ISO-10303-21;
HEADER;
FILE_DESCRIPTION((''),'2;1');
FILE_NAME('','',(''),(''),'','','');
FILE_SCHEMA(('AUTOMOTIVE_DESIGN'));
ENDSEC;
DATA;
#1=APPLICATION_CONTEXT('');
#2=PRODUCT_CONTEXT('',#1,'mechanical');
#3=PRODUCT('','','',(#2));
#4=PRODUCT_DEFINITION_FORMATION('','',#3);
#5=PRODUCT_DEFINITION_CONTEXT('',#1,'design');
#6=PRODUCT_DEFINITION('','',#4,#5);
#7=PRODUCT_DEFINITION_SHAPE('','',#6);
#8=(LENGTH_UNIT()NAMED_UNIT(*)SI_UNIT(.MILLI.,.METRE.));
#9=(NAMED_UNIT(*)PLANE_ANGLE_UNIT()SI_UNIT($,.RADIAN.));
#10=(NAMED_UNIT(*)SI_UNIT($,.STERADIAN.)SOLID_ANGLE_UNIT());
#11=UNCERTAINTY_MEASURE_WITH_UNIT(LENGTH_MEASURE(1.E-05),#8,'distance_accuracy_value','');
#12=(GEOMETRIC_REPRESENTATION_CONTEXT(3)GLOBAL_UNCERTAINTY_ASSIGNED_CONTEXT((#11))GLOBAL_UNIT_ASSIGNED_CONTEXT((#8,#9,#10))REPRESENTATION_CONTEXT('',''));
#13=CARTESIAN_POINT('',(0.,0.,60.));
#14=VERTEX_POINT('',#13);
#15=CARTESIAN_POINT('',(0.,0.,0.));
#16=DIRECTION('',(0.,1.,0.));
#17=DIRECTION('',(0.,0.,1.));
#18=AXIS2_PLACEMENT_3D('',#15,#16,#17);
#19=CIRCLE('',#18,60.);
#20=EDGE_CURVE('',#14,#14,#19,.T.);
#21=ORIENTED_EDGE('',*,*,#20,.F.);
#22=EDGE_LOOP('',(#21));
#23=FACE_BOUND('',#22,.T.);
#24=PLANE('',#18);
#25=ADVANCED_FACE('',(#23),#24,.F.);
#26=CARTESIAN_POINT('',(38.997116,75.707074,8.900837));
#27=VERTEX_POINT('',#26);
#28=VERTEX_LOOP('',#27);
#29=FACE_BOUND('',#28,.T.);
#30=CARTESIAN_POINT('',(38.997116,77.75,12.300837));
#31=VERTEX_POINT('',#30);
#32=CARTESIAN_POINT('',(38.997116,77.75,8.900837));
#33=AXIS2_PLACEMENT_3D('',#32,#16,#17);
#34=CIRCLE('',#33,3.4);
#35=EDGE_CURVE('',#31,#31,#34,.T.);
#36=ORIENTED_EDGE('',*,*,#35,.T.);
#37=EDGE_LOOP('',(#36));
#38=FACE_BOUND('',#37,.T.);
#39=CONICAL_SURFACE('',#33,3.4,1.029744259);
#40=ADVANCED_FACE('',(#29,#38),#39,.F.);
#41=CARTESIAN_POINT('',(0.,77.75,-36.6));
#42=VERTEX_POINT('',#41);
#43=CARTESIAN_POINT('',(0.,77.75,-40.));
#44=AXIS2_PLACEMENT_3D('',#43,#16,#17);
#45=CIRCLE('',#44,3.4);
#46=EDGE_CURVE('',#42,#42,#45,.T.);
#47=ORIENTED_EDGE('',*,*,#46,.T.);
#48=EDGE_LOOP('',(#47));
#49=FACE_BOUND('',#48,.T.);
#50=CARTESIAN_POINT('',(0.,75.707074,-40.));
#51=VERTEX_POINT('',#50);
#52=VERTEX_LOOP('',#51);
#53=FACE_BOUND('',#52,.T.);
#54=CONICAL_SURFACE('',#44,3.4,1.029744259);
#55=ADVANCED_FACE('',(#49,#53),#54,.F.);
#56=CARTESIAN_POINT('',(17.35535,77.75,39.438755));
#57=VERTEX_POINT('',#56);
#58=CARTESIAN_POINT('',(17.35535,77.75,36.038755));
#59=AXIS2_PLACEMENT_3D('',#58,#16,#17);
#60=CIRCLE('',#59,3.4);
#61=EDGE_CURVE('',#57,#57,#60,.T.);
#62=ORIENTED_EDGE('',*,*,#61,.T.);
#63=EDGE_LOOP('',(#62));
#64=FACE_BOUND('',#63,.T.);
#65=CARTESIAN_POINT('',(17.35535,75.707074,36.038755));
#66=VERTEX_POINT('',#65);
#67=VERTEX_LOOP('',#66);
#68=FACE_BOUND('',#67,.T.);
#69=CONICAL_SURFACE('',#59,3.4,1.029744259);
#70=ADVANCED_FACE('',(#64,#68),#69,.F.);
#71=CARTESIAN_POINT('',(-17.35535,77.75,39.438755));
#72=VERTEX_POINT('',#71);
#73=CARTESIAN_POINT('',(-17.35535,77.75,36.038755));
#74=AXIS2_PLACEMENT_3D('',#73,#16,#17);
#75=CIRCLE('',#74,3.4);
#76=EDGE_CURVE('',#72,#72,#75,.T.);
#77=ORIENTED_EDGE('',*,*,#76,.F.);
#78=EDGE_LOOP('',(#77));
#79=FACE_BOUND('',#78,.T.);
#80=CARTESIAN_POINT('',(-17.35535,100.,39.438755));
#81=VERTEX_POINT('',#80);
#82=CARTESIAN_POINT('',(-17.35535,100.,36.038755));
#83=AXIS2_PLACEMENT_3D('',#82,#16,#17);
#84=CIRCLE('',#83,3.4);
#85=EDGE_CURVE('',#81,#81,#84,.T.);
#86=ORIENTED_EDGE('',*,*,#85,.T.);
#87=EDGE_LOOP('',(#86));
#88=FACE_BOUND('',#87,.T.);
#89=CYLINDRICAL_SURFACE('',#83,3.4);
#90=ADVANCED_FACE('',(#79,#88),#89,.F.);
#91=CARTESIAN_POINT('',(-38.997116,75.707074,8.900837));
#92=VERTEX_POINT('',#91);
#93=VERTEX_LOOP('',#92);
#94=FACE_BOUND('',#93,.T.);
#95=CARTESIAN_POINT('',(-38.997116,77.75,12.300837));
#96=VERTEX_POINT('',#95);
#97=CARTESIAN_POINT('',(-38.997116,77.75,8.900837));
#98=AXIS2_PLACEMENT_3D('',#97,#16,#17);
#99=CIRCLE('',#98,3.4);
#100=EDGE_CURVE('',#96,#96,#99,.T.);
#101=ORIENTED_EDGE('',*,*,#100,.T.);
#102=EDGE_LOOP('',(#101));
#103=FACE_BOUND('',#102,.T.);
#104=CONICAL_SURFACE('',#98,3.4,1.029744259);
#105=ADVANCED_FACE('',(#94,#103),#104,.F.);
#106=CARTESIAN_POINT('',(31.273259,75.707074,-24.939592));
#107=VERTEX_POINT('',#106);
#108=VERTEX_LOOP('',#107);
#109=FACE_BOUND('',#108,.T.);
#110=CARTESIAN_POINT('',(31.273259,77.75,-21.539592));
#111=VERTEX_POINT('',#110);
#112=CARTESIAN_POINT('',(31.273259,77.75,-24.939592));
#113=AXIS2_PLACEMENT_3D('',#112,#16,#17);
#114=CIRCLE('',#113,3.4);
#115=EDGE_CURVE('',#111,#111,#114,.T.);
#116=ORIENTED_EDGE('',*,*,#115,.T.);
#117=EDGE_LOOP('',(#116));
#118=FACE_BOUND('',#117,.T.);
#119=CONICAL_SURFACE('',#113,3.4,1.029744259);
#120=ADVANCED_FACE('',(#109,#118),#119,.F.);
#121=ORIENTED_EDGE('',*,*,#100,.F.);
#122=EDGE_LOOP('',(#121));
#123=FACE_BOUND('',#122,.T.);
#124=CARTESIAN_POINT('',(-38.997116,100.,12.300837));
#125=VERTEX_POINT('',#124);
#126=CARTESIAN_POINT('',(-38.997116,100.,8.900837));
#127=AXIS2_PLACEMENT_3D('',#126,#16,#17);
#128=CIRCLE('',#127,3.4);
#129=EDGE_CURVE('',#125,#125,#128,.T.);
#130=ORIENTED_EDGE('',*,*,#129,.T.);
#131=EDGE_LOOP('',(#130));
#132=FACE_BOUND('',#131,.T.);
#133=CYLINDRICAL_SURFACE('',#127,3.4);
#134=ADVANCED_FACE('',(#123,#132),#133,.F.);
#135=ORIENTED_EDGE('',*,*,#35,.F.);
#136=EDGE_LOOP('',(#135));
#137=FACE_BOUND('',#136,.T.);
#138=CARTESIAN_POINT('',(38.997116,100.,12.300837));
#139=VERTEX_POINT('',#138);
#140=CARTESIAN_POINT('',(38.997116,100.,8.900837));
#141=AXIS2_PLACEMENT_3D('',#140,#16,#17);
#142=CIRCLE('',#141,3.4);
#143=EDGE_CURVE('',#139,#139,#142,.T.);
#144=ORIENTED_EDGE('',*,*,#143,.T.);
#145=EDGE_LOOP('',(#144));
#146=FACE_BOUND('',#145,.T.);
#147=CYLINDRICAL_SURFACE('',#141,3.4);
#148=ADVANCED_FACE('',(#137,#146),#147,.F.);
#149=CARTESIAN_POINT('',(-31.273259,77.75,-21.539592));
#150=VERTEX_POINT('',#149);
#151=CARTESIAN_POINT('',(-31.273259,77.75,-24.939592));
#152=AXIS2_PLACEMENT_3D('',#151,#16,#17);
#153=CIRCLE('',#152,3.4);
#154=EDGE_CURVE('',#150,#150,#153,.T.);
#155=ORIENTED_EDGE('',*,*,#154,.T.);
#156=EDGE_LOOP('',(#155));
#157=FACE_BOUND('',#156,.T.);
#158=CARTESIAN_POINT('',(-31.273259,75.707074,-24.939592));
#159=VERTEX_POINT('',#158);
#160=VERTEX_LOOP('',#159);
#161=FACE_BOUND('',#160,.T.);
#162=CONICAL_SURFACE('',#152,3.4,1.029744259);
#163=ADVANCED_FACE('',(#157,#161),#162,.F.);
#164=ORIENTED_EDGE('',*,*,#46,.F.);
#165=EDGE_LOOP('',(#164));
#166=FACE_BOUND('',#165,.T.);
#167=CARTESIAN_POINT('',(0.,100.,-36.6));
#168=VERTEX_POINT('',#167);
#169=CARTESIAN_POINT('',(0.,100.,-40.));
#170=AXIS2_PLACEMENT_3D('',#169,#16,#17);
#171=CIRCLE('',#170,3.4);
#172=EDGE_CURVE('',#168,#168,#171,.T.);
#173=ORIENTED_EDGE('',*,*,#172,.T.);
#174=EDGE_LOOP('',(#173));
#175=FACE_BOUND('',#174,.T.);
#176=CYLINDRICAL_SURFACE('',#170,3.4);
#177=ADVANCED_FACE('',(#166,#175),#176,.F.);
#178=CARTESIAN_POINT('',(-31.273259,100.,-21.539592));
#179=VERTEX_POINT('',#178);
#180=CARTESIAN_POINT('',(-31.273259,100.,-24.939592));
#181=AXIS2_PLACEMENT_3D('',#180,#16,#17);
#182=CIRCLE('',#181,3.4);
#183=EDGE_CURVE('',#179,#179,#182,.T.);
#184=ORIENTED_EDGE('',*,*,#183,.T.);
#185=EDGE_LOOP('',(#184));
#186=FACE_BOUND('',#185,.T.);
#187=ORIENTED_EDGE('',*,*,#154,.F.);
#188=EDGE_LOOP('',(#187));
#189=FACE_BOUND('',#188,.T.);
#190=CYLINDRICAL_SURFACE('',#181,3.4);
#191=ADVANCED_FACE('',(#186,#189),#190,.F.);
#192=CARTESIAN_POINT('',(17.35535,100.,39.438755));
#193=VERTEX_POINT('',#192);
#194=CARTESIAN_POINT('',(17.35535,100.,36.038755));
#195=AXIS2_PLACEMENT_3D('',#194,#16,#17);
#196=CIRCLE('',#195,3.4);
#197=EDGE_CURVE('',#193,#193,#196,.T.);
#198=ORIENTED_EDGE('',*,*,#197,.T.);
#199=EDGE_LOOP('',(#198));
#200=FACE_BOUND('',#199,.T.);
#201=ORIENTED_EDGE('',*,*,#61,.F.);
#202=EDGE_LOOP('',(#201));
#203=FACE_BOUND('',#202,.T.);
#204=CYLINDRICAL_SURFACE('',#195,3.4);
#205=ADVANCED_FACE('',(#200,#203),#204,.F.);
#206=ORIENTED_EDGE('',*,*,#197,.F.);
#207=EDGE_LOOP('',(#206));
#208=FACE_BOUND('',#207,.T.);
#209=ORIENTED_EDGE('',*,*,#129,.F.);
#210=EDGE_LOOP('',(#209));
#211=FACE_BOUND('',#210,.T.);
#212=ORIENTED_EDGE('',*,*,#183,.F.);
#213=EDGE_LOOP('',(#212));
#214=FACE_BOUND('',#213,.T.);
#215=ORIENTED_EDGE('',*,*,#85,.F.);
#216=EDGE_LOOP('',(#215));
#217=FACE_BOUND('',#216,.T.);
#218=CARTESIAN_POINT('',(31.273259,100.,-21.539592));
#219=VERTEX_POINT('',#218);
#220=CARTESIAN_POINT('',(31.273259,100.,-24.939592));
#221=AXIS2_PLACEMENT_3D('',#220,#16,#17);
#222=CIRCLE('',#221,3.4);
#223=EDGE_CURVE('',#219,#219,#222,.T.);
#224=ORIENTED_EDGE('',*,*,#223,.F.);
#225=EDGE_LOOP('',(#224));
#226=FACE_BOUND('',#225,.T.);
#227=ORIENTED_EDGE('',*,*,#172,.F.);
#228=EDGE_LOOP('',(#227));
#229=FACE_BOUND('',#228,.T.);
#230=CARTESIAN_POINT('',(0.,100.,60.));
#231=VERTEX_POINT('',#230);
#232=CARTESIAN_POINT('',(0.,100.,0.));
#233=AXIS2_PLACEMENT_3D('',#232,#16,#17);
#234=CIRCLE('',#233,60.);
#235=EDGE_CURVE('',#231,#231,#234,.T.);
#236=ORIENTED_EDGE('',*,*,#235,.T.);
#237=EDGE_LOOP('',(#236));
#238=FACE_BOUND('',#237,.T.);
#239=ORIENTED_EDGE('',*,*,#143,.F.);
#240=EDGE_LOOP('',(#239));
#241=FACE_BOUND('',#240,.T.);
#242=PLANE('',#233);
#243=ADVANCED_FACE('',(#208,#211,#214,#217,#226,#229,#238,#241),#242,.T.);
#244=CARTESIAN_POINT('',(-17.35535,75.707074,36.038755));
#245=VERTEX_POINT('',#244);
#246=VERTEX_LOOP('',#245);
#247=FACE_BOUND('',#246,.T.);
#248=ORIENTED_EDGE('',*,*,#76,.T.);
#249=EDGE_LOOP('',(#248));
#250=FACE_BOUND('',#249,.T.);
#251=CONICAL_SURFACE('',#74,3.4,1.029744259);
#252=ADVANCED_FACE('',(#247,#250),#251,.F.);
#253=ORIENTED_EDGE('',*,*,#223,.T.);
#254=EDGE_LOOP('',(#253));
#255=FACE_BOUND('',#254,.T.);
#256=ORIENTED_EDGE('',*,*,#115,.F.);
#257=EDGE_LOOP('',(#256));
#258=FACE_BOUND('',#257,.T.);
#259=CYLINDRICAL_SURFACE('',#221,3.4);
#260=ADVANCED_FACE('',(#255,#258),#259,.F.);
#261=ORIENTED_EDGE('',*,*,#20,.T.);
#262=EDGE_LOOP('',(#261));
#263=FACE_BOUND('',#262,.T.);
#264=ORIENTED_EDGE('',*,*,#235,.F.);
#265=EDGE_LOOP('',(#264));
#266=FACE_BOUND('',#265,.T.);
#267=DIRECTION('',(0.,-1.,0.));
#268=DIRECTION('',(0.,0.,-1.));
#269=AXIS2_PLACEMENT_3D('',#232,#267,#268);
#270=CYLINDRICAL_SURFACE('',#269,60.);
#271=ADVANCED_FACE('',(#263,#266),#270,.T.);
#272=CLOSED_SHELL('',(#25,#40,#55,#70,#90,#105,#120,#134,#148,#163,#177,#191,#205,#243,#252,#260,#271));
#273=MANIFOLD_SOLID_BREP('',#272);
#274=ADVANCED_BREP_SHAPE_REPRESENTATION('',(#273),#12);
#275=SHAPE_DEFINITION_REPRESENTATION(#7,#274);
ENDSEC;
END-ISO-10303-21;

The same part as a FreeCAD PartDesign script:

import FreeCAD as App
import Part
import Sketcher
from FreeCAD import Vector
Q = App.Units.Quantity

doc = App.newDocument("Part")
body = doc.addObject("PartDesign::Body", "Body")

sketch1 = body.newObject("Sketcher::SketchObject", "Sketch")
sketch1.AttachmentSupport = (doc.getObject("XZ_Plane"), [""])
sketch1.MapMode = "FlatFace"
sketch1.addGeometry(Part.Circle(Vector(0, 0, 0), Vector(0, 0, 1), 60), False)
sketch1.addConstraint(Sketcher.Constraint("Coincident", 0, 3, -1, 1))
sketch1.addConstraint(Sketcher.Constraint("Diameter", 0, Q("120 mm")))
pad1 = body.newObject("PartDesign::Pad", "Pad")
pad1.Profile = sketch1
pad1.Length = 100
pad1.Reversed = True

sketch2 = body.newObject("Sketcher::SketchObject", "Sketch001")
sketch2.AttachmentSupport = (doc.getObject("XZ_Plane"), [""])
sketch2.MapMode = "FlatFace"
sketch2.AttachmentOffset = App.Placement(Vector(0, 0, -100), App.Rotation())
sketch2.addGeometry(Part.Circle(Vector(0, -40, 0), Vector(0, 0, 1), 3.4), False)
sketch2.addGeometry(Part.Circle(Vector(31.3, -24.9, 0), Vector(0, 0, 1), 3.4), False)
sketch2.addGeometry(Part.Circle(Vector(39, 8.9, 0), Vector(0, 0, 1), 3.4), False)
sketch2.addGeometry(Part.Circle(Vector(17.4, 36, 0), Vector(0, 0, 1), 3.4), False)
sketch2.addGeometry(Part.Circle(Vector(-17.4, 36, 0), Vector(0, 0, 1), 3.4), False)
sketch2.addGeometry(Part.Circle(Vector(-39, 8.9, 0), Vector(0, 0, 1), 3.4), False)
sketch2.addGeometry(Part.Circle(Vector(-31.3, -24.9, 0), Vector(0, 0, 1), 3.4), False)
sketch2.addConstraint(Sketcher.Constraint("Equal", 0, 1))
sketch2.addConstraint(Sketcher.Constraint("Equal", 1, 2))
sketch2.addConstraint(Sketcher.Constraint("Equal", 2, 3))
sketch2.addConstraint(Sketcher.Constraint("Equal", 3, 4))
sketch2.addConstraint(Sketcher.Constraint("Equal", 4, 5))
sketch2.addConstraint(Sketcher.Constraint("Equal", 5, 6))
sketch2.addConstraint(Sketcher.Constraint("Symmetric", 3, 3, 4, 3, -2))
sketch2.addConstraint(Sketcher.Constraint("Symmetric", 2, 3, 5, 3, -2))
sketch2.addConstraint(Sketcher.Constraint("Symmetric", 1, 3, 6, 3, -2))
sketch2.addConstraint(Sketcher.Constraint("PointOnObject", 0, 3, -2))
sketch2.addConstraint(Sketcher.Constraint("Diameter", 0, Q("6.8 mm")))
sketch2.addConstraint(Sketcher.Constraint("DistanceY", 0, 3, -1, 1, Q("40 mm")))
sketch2.addConstraint(Sketcher.Constraint("DistanceX", 4, 3, 3, 3, Q("34.710699 mm")))
sketch2.addConstraint(Sketcher.Constraint("DistanceX", -1, 1, 1, 3, Q("31.273259 mm")))
sketch2.addConstraint(Sketcher.Constraint("DistanceY", 1, 3, 2, 3, Q("33.840429 mm")))
sketch2.addConstraint(Sketcher.Constraint("DistanceY", 1, 3, -1, 1, Q("24.939592 mm")))
sketch2.addConstraint(Sketcher.Constraint("DistanceX", -1, 1, 2, 3, Q("38.997116 mm")))
sketch2.addConstraint(Sketcher.Constraint("DistanceY", -1, 1, 3, 3, Q("36.038755 mm")))
doc.recompute()
hole = body.newObject("PartDesign::Hole", "Hole")
hole.Profile = sketch2
hole.ThreadType = "None"
hole.Diameter = 6.8
hole.DepthType = "Dimension"
hole.Depth = 22.25
hole.DrillPoint = "Angled"
hole.DrillPointAngle = 118
hole.Reversed = True

doc.recompute()
